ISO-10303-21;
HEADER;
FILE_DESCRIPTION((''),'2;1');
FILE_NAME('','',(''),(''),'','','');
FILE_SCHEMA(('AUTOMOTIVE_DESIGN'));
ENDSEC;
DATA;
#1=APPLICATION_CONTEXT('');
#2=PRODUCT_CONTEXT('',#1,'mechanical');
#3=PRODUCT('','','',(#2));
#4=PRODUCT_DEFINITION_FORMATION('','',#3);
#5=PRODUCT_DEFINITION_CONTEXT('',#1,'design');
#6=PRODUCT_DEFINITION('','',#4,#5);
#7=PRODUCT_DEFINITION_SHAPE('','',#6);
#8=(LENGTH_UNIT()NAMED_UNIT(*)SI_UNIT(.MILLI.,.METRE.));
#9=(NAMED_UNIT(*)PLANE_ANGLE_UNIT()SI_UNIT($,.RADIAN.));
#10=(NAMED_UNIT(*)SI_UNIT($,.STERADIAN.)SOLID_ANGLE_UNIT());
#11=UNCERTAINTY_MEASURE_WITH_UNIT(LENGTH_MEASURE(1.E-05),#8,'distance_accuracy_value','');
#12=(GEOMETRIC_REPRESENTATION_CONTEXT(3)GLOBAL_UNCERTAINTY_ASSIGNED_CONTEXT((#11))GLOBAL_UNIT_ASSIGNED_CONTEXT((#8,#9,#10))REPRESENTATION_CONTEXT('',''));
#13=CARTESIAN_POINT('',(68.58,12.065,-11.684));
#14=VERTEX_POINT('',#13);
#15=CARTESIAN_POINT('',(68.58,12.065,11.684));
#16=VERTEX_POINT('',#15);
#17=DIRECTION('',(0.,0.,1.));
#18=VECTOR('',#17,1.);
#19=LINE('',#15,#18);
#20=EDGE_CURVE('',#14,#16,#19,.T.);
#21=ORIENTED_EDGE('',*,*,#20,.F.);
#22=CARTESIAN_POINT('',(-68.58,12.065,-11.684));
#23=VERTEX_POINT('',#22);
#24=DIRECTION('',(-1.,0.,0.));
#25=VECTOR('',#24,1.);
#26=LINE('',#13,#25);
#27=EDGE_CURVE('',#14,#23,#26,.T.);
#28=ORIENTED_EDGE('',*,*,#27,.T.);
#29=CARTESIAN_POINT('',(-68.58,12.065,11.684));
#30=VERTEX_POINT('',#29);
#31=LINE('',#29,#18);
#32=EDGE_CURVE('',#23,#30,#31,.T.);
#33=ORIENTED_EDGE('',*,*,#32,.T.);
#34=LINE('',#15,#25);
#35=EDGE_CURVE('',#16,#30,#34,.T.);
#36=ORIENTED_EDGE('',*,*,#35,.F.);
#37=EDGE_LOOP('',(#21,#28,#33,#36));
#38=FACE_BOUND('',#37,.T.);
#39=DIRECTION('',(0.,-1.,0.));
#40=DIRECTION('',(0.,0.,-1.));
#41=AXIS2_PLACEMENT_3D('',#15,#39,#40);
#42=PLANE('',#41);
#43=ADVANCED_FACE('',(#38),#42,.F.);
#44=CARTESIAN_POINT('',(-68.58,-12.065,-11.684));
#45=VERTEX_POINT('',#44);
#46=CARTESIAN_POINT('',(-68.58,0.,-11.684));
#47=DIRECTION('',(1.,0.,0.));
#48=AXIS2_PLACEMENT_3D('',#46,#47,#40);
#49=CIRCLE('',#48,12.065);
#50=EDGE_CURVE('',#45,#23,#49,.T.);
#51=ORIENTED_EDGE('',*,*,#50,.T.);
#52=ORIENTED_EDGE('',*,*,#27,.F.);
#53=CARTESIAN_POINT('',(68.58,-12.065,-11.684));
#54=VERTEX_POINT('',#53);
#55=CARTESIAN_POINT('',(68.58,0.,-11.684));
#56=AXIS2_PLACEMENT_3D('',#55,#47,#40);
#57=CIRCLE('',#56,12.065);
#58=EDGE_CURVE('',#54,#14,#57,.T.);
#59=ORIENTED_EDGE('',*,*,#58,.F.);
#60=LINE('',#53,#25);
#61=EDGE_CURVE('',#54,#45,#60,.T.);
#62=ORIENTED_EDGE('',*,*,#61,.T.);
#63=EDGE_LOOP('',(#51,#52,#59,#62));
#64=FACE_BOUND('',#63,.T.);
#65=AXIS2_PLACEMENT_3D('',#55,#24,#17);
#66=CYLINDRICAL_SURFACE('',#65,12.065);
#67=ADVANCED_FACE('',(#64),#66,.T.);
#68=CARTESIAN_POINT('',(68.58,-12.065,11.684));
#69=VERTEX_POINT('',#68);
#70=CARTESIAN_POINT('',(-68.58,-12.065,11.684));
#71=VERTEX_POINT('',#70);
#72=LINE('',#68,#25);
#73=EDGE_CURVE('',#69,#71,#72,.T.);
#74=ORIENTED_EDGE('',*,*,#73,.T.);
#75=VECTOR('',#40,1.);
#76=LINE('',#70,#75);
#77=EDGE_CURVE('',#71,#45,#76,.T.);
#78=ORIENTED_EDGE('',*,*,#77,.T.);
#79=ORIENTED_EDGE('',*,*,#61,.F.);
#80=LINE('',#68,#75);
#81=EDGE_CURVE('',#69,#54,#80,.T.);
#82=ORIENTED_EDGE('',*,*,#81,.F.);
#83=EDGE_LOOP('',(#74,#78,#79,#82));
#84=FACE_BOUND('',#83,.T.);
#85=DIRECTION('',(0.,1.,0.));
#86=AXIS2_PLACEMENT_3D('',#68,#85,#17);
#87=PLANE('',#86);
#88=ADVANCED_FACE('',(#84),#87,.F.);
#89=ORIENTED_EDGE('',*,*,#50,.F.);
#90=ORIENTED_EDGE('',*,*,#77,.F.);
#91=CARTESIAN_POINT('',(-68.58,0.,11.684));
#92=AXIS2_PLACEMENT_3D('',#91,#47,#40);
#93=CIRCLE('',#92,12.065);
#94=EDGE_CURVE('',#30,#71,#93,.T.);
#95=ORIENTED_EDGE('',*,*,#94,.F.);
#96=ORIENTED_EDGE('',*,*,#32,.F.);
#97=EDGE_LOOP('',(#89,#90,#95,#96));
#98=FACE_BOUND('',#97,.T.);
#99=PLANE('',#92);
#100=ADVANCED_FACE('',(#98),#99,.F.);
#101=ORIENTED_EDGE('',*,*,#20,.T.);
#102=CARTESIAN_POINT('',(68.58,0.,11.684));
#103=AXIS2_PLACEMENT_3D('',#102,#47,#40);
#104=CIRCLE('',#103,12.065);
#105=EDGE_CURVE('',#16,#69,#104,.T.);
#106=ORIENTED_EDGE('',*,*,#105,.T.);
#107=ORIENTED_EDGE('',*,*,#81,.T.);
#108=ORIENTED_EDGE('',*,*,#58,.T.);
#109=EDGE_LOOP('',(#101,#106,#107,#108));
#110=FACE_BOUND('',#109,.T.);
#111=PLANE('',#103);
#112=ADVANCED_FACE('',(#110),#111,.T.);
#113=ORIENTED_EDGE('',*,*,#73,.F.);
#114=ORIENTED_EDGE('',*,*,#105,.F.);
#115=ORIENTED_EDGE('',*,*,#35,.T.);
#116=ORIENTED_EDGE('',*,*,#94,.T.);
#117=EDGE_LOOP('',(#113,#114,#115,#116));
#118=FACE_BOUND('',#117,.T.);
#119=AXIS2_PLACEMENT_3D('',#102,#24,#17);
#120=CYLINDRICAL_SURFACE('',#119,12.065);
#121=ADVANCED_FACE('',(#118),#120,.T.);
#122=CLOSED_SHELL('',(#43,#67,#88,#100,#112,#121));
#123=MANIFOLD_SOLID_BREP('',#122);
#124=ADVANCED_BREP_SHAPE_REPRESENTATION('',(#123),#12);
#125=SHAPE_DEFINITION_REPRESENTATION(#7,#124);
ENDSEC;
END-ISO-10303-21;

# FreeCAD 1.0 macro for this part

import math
import FreeCAD as App
import Part
import Sketcher
from FreeCAD import Vector
Q = App.Units.Quantity

doc = App.newDocument("Part")
body = doc.addObject("PartDesign::Body", "Body")

sketch1 = body.newObject("Sketcher::SketchObject", "Sketch")
sketch1.AttachmentSupport = (doc.getObject("YZ_Plane"), [""])
sketch1.MapMode = "FlatFace"
sketch1.addGeometry(Part.LineSegment(Vector(12, -12, 0), Vector(12, 12, 0)), False)
sketch1.addGeometry(Part.ArcOfCircle(Part.Circle(Vector(0, 12, 0), Vector(0, 0, 1), 12), math.radians(0), math.radians(180)), False)
sketch1.addGeometry(Part.LineSegment(Vector(-12, 12, 0), Vector(-12, -12, 0)), False)
sketch1.addGeometry(Part.ArcOfCircle(Part.Circle(Vector(0, -12, 0), Vector(0, 0, 1), 12), math.radians(180), math.radians(360)), False)
sketch1.addConstraint(Sketcher.Constraint("Tangent", 0, 2, 1, 1))
sketch1.addConstraint(Sketcher.Constraint("Tangent", 1, 2, 2, 1))
sketch1.addConstraint(Sketcher.Constraint("Tangent", 2, 2, 3, 1))
sketch1.addConstraint(Sketcher.Constraint("Tangent", 3, 2, 0, 1))
sketch1.addConstraint(Sketcher.Constraint("Vertical", 0))
sketch1.addConstraint(Sketcher.Constraint("Vertical", 2))
sketch1.addConstraint(Sketcher.Constraint("Symmetric", 1, 3, 3, 3, -1, 1))
sketch1.addConstraint(Sketcher.Constraint("Radius", 1, Q("0.475 in")))
sketch1.addConstraint(Sketcher.Constraint("DistanceY", 0, 1, 0, 2, Q("0.92 in")))
pad1 = body.newObject("PartDesign::Pad", "Pad")
pad1.Profile = sketch1
pad1.Length = Q("5.4 in")
pad1.Midplane = True

doc.recompute()
